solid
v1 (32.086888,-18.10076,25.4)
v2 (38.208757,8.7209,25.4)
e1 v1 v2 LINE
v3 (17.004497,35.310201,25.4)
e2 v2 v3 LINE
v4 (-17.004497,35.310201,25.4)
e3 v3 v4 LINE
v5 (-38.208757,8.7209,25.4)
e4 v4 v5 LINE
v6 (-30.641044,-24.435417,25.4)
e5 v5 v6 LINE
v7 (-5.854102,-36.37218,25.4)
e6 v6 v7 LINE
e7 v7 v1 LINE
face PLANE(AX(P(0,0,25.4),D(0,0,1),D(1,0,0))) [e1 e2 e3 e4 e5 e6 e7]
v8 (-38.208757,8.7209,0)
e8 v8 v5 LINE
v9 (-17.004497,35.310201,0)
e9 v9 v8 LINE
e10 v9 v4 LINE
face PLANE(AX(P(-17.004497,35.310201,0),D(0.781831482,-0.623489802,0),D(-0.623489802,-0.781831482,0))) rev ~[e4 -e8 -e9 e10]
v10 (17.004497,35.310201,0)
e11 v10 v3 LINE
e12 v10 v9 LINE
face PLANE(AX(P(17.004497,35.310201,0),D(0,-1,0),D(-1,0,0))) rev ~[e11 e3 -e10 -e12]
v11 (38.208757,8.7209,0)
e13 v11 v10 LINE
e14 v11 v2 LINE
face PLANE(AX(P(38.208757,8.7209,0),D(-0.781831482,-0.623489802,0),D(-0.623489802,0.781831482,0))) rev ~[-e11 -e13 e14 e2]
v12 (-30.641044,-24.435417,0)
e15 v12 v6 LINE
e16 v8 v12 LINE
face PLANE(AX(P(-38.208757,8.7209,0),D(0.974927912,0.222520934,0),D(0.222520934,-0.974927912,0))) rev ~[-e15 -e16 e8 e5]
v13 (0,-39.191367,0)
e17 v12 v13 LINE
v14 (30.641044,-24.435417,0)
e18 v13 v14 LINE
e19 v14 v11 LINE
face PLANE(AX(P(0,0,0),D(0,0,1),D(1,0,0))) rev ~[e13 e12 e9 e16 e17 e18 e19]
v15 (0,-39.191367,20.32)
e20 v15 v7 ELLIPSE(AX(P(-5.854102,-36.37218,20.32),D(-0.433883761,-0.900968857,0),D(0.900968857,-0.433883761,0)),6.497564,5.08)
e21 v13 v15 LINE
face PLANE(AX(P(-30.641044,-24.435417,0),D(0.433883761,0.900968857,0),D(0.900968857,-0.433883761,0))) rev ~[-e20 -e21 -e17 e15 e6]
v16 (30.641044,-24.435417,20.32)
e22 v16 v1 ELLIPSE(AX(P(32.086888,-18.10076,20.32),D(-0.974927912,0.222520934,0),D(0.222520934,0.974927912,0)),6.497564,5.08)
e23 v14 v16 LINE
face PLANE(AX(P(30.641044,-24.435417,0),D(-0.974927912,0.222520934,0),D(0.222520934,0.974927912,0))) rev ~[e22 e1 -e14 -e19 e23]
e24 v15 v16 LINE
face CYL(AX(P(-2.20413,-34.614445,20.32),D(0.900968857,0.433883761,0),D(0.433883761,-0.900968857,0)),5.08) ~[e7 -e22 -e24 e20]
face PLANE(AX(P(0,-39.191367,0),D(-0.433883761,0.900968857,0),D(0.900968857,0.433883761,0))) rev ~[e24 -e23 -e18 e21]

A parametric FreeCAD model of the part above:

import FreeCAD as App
import Part
import Sketcher

V = App.Vector


def edges_at(feature, points):
    """Names of the edges that pass closest to the given points."""
    edges = feature.Shape.Edges
    near = lambda p: min(range(len(edges)), key=lambda i: edges[i].distToShape(Part.Vertex(*p))[0])
    return sorted({f"Edge{near(p) + 1}" for p in points})

doc = App.newDocument("Part")
params = doc.addObject("Spreadsheet::Sheet", "Params")
for row, (alias, value) in enumerate([
    ("pad1_length", "1 in"),
    ("fillet_radius", "0.2 in"),
], start=1):
    params.set(f"A{row}", alias)
    params.set(f"B{row}", "=" + value)
    params.setAlias(f"B{row}", alias)

body = doc.addObject("PartDesign::Body", "Body")

# Sketch on XY plane
sketch1 = body.newObject("Sketcher::SketchObject", "Sketch")
sketch1.AttachmentSupport = (doc.getObject("XY_Plane"), [""])
sketch1.MapMode = "FlatFace"
sketch1.addGeometry([
    Part.LineSegment(V(17, 35, 0), V(-17, 35, 0)),  # 0
    Part.LineSegment(V(-17, 35, 0), V(-38, 9, 0)),  # 1
    Part.LineSegment(V(-38, 9, 0), V(-31, -24, 0)),  # 2
    Part.LineSegment(V(-31, -24, 0), V(0, -39, 0)),  # 3
    Part.LineSegment(V(0, -39, 0), V(31, -24, 0)),  # 4
    Part.LineSegment(V(31, -24, 0), V(38, 9, 0)),  # 5
    Part.LineSegment(V(38, 9, 0), V(17, 35, 0)),  # 6
], False)
sketch1.addConstraint([
    Sketcher.Constraint("Coincident", 0, 2, 1, 1),
    Sketcher.Constraint("Coincident", 1, 2, 2, 1),
    Sketcher.Constraint("Coincident", 2, 2, 3, 1),
    Sketcher.Constraint("Coincident", 3, 2, 4, 1),
    Sketcher.Constraint("Coincident", 4, 2, 5, 1),
    Sketcher.Constraint("Coincident", 5, 2, 6, 1),
    Sketcher.Constraint("Coincident", 6, 2, 0, 1),
    Sketcher.Constraint("Horizontal", 0),
    Sketcher.Constraint("Symmetric", 2, 2, 4, 2, -2),
    Sketcher.Constraint("Symmetric", 1, 2, 5, 2, -2),
    Sketcher.Constraint("PointOnObject", 3, 2, -2),
    Sketcher.Constraint("Equal", 1, 2),
    Sketcher.Constraint("Equal", 2, 3),
    Sketcher.Constraint("Equal", 5, 6),
    Sketcher.Constraint("DistanceY", -1, 1, 0, 2, 35.310201),
    Sketcher.Constraint("DistanceY", -1, 1, 1, 2, 8.7209),
    Sketcher.Constraint("DistanceX", 1, 2, 4, 2, 68.849801),
    Sketcher.Constraint("DistanceX", 0, 2, 0, 1, 34.008994),
    Sketcher.Constraint("DistanceX", 1, 2, 0, 2, 21.20426),
])
pad1 = body.newObject("PartDesign::Pad", "Pad")
pad1.Profile = sketch1
pad1.setExpression("Length", "Params.pad1_length")
doc.recompute()

fillet = body.newObject("PartDesign::Fillet", "Fillet")
fillet.Base = (pad1, edges_at(pad1, [(15.321, -31.813, 25.4)]))
fillet.setExpression("Radius", "Params.fillet_radius")

doc.recompute()
